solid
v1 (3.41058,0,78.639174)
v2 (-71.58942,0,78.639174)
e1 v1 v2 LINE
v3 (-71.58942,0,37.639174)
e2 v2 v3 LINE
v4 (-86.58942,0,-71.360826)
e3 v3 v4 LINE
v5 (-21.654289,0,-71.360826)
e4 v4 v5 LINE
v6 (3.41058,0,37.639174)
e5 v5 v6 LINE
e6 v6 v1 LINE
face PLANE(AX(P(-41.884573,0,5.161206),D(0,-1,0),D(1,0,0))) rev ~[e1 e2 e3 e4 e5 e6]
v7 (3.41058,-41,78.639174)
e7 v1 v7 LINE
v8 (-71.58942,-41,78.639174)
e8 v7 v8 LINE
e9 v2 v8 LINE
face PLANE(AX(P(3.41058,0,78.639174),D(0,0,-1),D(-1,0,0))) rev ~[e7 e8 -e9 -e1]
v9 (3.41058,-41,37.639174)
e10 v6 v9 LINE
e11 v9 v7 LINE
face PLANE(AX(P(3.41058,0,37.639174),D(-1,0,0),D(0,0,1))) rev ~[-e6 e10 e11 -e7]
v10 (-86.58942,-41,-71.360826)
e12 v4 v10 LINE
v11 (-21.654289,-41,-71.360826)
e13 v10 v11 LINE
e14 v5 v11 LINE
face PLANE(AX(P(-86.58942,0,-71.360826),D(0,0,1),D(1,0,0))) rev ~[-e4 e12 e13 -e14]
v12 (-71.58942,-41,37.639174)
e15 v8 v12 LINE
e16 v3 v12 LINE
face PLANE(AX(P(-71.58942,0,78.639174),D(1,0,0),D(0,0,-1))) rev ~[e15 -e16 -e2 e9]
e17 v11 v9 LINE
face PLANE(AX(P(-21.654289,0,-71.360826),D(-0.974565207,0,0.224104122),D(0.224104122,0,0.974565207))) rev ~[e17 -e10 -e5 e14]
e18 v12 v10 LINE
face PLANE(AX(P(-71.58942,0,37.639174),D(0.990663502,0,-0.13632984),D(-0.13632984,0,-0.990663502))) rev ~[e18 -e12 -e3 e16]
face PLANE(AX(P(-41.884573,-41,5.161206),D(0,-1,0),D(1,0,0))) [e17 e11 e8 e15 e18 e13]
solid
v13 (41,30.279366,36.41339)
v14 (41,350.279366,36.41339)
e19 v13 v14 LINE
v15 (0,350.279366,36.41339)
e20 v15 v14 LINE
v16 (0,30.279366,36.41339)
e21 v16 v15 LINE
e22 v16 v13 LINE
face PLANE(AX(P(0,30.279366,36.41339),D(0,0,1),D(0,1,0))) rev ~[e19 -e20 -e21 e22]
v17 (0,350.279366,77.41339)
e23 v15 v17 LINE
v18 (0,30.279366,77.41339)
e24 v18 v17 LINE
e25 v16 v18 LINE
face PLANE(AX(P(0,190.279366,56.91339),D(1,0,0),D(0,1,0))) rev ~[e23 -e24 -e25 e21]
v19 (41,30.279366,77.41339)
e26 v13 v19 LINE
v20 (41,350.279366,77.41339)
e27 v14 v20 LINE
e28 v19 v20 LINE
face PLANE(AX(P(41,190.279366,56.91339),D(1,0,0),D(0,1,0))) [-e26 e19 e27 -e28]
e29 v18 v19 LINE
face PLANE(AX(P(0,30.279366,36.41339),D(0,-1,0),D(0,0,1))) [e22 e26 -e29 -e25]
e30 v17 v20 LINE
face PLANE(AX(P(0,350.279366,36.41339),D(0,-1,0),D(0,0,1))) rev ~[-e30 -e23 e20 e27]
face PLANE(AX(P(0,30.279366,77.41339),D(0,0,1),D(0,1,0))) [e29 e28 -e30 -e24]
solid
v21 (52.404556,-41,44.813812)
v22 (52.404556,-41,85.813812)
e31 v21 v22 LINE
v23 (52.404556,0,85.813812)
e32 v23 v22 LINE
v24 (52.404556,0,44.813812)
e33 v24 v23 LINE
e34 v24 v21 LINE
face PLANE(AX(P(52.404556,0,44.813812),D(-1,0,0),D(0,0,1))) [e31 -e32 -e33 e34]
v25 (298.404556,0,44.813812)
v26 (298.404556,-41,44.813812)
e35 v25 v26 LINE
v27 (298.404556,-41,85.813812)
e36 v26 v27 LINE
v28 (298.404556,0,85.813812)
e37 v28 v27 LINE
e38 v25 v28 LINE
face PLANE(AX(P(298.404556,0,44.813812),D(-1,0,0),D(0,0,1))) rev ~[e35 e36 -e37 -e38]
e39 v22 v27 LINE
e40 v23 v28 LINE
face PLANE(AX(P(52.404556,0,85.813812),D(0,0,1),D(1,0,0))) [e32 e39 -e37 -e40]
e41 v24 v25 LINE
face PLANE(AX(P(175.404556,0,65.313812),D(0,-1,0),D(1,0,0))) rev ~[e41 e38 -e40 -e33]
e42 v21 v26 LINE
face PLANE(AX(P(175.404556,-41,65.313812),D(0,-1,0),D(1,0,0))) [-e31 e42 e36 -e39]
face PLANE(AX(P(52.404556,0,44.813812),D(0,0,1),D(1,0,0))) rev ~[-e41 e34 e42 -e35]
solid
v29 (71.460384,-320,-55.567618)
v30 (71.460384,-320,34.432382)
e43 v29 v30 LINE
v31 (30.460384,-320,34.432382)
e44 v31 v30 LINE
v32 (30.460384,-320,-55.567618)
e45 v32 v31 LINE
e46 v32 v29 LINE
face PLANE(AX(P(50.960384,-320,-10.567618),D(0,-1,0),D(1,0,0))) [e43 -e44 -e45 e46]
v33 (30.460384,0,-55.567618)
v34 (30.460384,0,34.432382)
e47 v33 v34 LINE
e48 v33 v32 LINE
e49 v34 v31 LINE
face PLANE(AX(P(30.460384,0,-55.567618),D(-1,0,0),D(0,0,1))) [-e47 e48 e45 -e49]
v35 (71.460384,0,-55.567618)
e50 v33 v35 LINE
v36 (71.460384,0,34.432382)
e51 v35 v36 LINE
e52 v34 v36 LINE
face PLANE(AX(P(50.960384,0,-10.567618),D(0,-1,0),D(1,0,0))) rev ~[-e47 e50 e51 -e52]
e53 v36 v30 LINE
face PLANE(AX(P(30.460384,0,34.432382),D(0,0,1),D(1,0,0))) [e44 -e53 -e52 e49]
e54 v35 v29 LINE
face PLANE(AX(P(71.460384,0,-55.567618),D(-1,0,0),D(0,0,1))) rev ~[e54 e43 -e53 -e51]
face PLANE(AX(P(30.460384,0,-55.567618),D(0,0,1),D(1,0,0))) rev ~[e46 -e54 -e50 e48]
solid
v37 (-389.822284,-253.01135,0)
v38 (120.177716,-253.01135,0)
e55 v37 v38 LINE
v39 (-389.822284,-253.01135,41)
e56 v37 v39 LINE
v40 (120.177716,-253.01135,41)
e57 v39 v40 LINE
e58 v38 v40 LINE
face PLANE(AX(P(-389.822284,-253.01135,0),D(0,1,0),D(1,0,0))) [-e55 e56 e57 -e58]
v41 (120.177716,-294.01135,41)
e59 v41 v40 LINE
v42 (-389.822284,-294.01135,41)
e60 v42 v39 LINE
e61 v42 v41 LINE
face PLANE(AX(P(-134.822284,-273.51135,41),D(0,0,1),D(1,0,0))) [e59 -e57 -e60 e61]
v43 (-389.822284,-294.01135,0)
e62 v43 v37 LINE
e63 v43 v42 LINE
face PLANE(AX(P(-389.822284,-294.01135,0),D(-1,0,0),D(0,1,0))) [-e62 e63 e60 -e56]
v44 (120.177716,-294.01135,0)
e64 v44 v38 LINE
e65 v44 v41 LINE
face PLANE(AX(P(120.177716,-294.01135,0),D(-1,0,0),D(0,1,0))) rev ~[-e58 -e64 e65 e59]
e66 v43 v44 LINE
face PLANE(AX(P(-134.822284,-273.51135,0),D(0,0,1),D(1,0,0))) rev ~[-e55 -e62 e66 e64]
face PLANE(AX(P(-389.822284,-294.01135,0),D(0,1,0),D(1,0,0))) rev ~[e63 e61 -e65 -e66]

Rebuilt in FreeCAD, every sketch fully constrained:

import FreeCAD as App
import Part
import Sketcher
from FreeCAD import Vector
Q = App.Units.Quantity

doc = App.newDocument("Part")
body = doc.addObject("PartDesign::Body", "Body")

sketch1 = body.newObject("Sketcher::SketchObject", "Sketch")
sketch1.AttachmentSupport = (doc.getObject("XZ_Plane"), [""])
sketch1.MapMode = "FlatFace"
sketch1.addGeometry(Part.LineSegment(Vector(3, 79, 0), Vector(-72, 79, 0)), False)
sketch1.addGeometry(Part.LineSegment(Vector(-72, 79, 0), Vector(-72, 38, 0)), False)
sketch1.addGeometry(Part.LineSegment(Vector(-72, 38, 0), Vector(-87, -71, 0)), False)
sketch1.addGeometry(Part.LineSegment(Vector(-87, -71, 0), Vector(-22, -71, 0)), False)
sketch1.addGeometry(Part.LineSegment(Vector(-22, -71, 0), Vector(3, 38, 0)), False)
sketch1.addGeometry(Part.LineSegment(Vector(3, 38, 0), Vector(3, 79, 0)), False)
sketch1.addConstraint(Sketcher.Constraint("Coincident", 0, 2, 1, 1))
sketch1.addConstraint(Sketcher.Constraint("Coincident", 1, 2, 2, 1))
sketch1.addConstraint(Sketcher.Constraint("Coincident", 2, 2, 3, 1))
sketch1.addConstraint(Sketcher.Constraint("Coincident", 3, 2, 4, 1))
sketch1.addConstraint(Sketcher.Constraint("Coincident", 4, 2, 5, 1))
sketch1.addConstraint(Sketcher.Constraint("Coincident", 5, 2, 0, 1))
sketch1.addConstraint(Sketcher.Constraint("Horizontal", 0))
sketch1.addConstraint(Sketcher.Constraint("Vertical", 1))
sketch1.addConstraint(Sketcher.Constraint("Horizontal", 3))
sketch1.addConstraint(Sketcher.Constraint("Vertical", 5))
sketch1.addConstraint(Sketcher.Constraint("Horizontal", 1, 2, 4, 2))
sketch1.addConstraint(Sketcher.Constraint("DistanceX", 0, 2, 0, 1, Q("75 mm")))
sketch1.addConstraint(Sketcher.Constraint("DistanceY", 1, 2, 1, 1, Q("41 mm")))
sketch1.addConstraint(Sketcher.Constraint("DistanceX", 2, 2, 1, 2, Q("15 mm")))
sketch1.addConstraint(Sketcher.Constraint("DistanceY", 2, 2, 1, 2, Q("109 mm")))
sketch1.addConstraint(Sketcher.Constraint("DistanceX", 3, 1, 3, 2, Q("64.935131 mm")))
sketch1.addConstraint(Sketcher.Constraint("DistanceX", 0, 2, -1, 1, Q("71.58942 mm")))
sketch1.addConstraint(Sketcher.Constraint("DistanceY", -1, 1, 0, 2, Q("78.639174 mm")))
pad1 = body.newObject("PartDesign::Pad", "Pad")
pad1.Profile = sketch1
pad1.Length = 41
body2 = doc.addObject("PartDesign::Body", "Body001")

sketch2 = body2.newObject("Sketcher::SketchObject", "Sketch001")
sketch2.AttachmentSupport = (doc.getObject("XZ_Plane001"), [""])
sketch2.MapMode = "FlatFace"
sketch2.addGeometry(Part.LineSegment(Vector(52, 86, 0), Vector(52, 45, 0)), False)
sketch2.addGeometry(Part.LineSegment(Vector(52, 45, 0), Vector(298, 45, 0)), False)
sketch2.addGeometry(Part.LineSegment(Vector(298, 45, 0), Vector(298, 86, 0)), False)
sketch2.addGeometry(Part.LineSegment(Vector(298, 86, 0), Vector(52, 86, 0)), False)
sketch2.addConstraint(Sketcher.Constraint("Coincident", 0, 2, 1, 1))
sketch2.addConstraint(Sketcher.Constraint("Coincident", 1, 2, 2, 1))
sketch2.addConstraint(Sketcher.Constraint("Coincident", 2, 2, 3, 1))
sketch2.addConstraint(Sketcher.Constraint("Coincident", 3, 2, 0, 1))
sketch2.addConstraint(Sketcher.Constraint("Vertical", 0))
sketch2.addConstraint(Sketcher.Constraint("Horizontal", 1))
sketch2.addConstraint(Sketcher.Constraint("Vertical", 2))
sketch2.addConstraint(Sketcher.Constraint("Horizontal", 3))
sketch2.addConstraint(Sketcher.Constraint("DistanceX", 1, 1, 1, 2, Q("246 mm")))
sketch2.addConstraint(Sketcher.Constraint("DistanceY", 0, 2, 0, 1, Q("41 mm")))
sketch2.addConstraint(Sketcher.Constraint("DistanceY", -1, 1, 2, 2, Q("85.813812 mm")))
sketch2.addConstraint(Sketcher.Constraint("DistanceX", -1, 1, 0, 2, Q("52.404556 mm")))
pad2 = body2.newObject("PartDesign::Pad", "Pad001")
pad2.Profile = sketch2
pad2.Length = 41
body3 = doc.addObject("PartDesign::Body", "Body002")

sketch3 = body3.newObject("Sketcher::SketchObject", "Sketch002")
sketch3.AttachmentSupport = (doc.getObject("YZ_Plane002"), [""])
sketch3.MapMode = "FlatFace"
sketch3.addGeometry(Part.LineSegment(Vector(30, 77, 0), Vector(30, 36, 0)), False)
sketch3.addGeometry(Part.LineSegment(Vector(30, 36, 0), Vector(350, 36, 0)), False)
sketch3.addGeometry(Part.LineSegment(Vector(350, 36, 0), Vector(350, 77, 0)), False)
sketch3.addGeometry(Part.LineSegment(Vector(350, 77, 0), Vector(30, 77, 0)), False)
sketch3.addConstraint(Sketcher.Constraint("Coincident", 0, 2, 1, 1))
sketch3.addConstraint(Sketcher.Constraint("Coincident", 1, 2, 2, 1))
sketch3.addConstraint(Sketcher.Constraint("Coincident", 2, 2, 3, 1))
sketch3.addConstraint(Sketcher.Constraint("Coincident", 3, 2, 0, 1))
sketch3.addConstraint(Sketcher.Constraint("Vertical", 0))
sketch3.addConstraint(Sketcher.Constraint("Horizontal", 1))
sketch3.addConstraint(Sketcher.Constraint("Vertical", 2))
sketch3.addConstraint(Sketcher.Constraint("Horizontal", 3))
sketch3.addConstraint(Sketcher.Constraint("DistanceX", 1, 1, 1, 2, Q("320 mm")))
sketch3.addConstraint(Sketcher.Constraint("DistanceY", 0, 2, 0, 1, Q("41 mm")))
sketch3.addConstraint(Sketcher.Constraint("DistanceY", -1, 1, 0, 2, Q("36.41339 mm")))
sketch3.addConstraint(Sketcher.Constraint("DistanceX", -1, 1, 0, 2, Q("30.279366 mm")))
pad3 = body3.newObject("PartDesign::Pad", "Pad002")
pad3.Profile = sketch3
pad3.Length = 41
body4 = doc.addObject("PartDesign::Body", "Body003")

sketch4 = body4.newObject("Sketcher::SketchObject", "Sketch003")
sketch4.AttachmentSupport = (doc.getObject("XY_Plane003"), [""])
sketch4.MapMode = "FlatFace"
sketch4.addGeometry(Part.LineSegment(Vector(-390, -253, 0), Vector(-390, -294, 0)), False)
sketch4.addGeometry(Part.LineSegment(Vector(-390, -294, 0), Vector(120, -294, 0)), False)
sketch4.addGeometry(Part.LineSegment(Vector(120, -294, 0), Vector(120, -253, 0)), False)
sketch4.addGeometry(Part.LineSegment(Vector(120, -253, 0), Vector(-390, -253, 0)), False)
sketch4.addConstraint(Sketcher.Constraint("Coincident", 0, 2, 1, 1))
sketch4.addConstraint(Sketcher.Constraint("Coincident", 1, 2, 2, 1))
sketch4.addConstraint(Sketcher.Constraint("Coincident", 2, 2, 3, 1))
sketch4.addConstraint(Sketcher.Constraint("Coincident", 3, 2, 0, 1))
sketch4.addConstraint(Sketcher.Constraint("Vertical", 0))
sketch4.addConstraint(Sketcher.Constraint("Horizontal", 1))
sketch4.addConstraint(Sketcher.Constraint("Vertical", 2))
sketch4.addConstraint(Sketcher.Constraint("Horizontal", 3))
sketch4.addConstraint(Sketcher.Constraint("DistanceX", 1, 1, 1, 2, Q("510 mm")))
sketch4.addConstraint(Sketcher.Constraint("DistanceY", 0, 2, 0, 1, Q("41 mm")))
sketch4.addConstraint(Sketcher.Constraint("DistanceY", 0, 2, -1, 1, Q("294.01135 mm")))
sketch4.addConstraint(Sketcher.Constraint("DistanceX", 0, 2, -1, 1, Q("389.822284 mm")))
pad4 = body4.newObject("PartDesign::Pad", "Pad003")
pad4.Profile = sketch4
pad4.Length = 41
body5 = doc.addObject("PartDesign::Body", "Body004")

sketch5 = body5.newObject("Sketcher::SketchObject", "Sketch004")
sketch5.AttachmentSupport = (doc.getObject("XZ_Plane004"), [""])
sketch5.MapMode = "FlatFace"
sketch5.addGeometry(Part.LineSegment(Vector(30, 34, 0), Vector(30, -56, 0)), False)
sketch5.addGeometry(Part.LineSegment(Vector(30, -56, 0), Vector(71, -56, 0)), False)
sketch5.addGeometry(Part.LineSegment(Vector(71, -56, 0), Vector(71, 34, 0)), False)
sketch5.addGeometry(Part.LineSegment(Vector(71, 34, 0), Vector(30, 34, 0)), False)
sketch5.addConstraint(Sketcher.Constraint("Coincident", 0, 2, 1, 1))
sketch5.addConstraint(Sketcher.Constraint("Coincident", 1, 2, 2, 1))
sketch5.addConstraint(Sketcher.Constraint("Coincident", 2, 2, 3, 1))
sketch5.addConstraint(Sketcher.Constraint("Coincident", 3, 2, 0, 1))
sketch5.addConstraint(Sketcher.Constraint("Vertical", 0))
sketch5.addConstraint(Sketcher.Constraint("Horizontal", 1))
sketch5.addConstraint(Sketcher.Constraint("Vertical", 2))
sketch5.addConstraint(Sketcher.Constraint("Horizontal", 3))
sketch5.addConstraint(Sketcher.Constraint("DistanceX", 1, 1, 1, 2, Q("41 mm")))
sketch5.addConstraint(Sketcher.Constraint("DistanceY", 0, 2, 0, 1, Q("90 mm")))
sketch5.addConstraint(Sketcher.Constraint("DistanceY", 0, 2, -1, 1, Q("55.567618 mm")))
sketch5.addConstraint(Sketcher.Constraint("DistanceX", -1, 1, 0, 2, Q("30.460384 mm")))
pad5 = body5.newObject("PartDesign::Pad", "Pad004")
pad5.Profile = sketch5
pad5.Length = 320

doc.recompute()
